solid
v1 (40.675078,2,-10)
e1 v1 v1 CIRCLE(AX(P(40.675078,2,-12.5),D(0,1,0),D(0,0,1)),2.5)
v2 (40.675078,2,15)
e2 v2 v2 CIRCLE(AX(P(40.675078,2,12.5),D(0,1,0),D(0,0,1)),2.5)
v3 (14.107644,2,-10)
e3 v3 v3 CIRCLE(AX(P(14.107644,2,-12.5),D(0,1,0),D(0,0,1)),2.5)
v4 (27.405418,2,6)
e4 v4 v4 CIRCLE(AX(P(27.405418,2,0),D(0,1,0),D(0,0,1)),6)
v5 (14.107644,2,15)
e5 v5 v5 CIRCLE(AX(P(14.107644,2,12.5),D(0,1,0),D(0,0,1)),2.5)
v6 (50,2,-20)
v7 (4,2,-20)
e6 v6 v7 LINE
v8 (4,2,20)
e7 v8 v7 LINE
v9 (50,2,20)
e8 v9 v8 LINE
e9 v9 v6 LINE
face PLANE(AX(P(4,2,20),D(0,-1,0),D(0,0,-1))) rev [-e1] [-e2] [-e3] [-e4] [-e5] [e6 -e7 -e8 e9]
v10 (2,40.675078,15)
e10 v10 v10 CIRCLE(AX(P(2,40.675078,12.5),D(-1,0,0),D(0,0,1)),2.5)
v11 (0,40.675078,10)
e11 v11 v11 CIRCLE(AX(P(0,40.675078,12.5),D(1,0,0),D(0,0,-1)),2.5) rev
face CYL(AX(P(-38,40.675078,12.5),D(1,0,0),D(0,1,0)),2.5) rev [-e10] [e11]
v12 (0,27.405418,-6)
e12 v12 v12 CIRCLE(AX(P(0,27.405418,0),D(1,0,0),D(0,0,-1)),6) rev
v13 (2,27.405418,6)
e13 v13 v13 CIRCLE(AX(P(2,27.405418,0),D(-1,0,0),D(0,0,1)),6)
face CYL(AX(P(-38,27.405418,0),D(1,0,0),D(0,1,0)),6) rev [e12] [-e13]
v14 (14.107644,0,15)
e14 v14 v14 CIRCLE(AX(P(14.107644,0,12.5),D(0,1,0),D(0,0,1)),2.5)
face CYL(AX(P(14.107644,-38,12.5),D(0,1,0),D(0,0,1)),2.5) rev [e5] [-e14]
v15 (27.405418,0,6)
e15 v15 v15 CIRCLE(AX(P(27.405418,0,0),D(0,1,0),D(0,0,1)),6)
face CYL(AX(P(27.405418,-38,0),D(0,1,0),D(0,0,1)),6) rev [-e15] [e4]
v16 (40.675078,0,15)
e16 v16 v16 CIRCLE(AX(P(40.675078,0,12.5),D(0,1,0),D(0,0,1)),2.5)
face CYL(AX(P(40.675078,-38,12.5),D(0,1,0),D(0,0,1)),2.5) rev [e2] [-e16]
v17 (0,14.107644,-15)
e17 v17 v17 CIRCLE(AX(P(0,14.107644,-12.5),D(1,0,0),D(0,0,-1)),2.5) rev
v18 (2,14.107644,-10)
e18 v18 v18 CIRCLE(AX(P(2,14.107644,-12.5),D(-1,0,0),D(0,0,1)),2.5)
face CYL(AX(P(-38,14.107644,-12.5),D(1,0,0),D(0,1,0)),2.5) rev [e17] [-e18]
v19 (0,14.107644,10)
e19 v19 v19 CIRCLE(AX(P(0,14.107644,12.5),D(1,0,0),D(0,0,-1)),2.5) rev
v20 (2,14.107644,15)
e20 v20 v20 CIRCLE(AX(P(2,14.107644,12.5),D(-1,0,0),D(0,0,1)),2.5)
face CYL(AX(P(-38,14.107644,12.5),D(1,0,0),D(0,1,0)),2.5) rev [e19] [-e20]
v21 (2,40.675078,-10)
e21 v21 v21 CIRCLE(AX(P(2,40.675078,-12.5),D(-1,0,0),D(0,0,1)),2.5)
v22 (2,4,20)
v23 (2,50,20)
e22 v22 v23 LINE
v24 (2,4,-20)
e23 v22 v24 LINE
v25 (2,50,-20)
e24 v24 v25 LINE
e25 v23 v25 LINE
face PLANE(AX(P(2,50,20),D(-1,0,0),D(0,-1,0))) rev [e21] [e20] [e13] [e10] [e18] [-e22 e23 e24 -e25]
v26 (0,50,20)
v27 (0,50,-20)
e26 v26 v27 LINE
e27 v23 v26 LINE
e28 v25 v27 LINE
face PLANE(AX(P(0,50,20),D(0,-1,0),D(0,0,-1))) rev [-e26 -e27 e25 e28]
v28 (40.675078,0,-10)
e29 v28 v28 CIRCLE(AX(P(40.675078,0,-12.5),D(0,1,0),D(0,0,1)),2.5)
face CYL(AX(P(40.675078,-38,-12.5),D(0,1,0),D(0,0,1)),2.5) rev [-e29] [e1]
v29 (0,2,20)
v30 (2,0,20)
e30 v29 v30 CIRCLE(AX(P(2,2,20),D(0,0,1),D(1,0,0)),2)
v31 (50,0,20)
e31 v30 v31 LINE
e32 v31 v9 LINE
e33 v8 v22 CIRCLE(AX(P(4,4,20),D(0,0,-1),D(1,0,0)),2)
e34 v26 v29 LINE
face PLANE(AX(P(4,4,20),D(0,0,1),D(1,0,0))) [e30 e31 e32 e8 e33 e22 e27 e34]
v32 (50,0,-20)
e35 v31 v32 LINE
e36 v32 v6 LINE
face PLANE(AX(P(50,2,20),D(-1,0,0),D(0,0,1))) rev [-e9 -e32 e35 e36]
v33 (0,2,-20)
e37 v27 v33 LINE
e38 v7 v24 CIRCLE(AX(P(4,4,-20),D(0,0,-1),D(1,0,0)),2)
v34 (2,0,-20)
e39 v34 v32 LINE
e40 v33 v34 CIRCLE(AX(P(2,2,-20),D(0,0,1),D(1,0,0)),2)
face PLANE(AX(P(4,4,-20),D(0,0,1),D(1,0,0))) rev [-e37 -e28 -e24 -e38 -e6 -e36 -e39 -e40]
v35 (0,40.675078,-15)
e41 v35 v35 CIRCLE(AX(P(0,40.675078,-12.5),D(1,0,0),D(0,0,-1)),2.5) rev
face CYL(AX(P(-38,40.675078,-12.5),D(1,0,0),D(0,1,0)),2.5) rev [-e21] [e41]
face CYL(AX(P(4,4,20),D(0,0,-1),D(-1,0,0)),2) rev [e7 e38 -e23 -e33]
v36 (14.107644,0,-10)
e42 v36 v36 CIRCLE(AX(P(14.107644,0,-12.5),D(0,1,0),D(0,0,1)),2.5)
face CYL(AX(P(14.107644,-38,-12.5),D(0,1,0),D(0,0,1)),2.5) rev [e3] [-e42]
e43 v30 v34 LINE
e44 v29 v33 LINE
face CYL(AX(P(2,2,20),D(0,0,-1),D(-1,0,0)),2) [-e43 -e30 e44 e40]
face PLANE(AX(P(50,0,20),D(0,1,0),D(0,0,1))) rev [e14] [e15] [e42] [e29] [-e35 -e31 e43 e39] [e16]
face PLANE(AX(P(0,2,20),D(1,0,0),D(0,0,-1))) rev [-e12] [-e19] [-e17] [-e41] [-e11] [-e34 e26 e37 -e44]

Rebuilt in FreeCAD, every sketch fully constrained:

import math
import FreeCAD as App
import Part
import Sketcher

V = App.Vector
Q = App.Units.Quantity

doc = App.newDocument("Part")
body = doc.addObject("PartDesign::Body", "Body")

sketch1 = body.newObject("Sketcher::SketchObject", "Sketch")
sketch1.AttachmentSupport = (doc.getObject("XY_Plane"), [""])
sketch1.MapMode = "FlatFace"
sketch1.addGeometry([
    Part.LineSegment(V(0, 50, 0), V(0, 2, 0)),
    Part.ArcOfCircle(Part.Circle(V(2, 2, 0), V(0, 0, 1), 2), math.radians(-180), math.radians(-90)),
    Part.LineSegment(V(2, 0, 0), V(50, 0, 0)),
    Part.LineSegment(V(50, 0, 0), V(50, 2, 0)),
    Part.LineSegment(V(50, 2, 0), V(4, 2, 0)),
    Part.ArcOfCircle(Part.Circle(V(4, 4, 0), V(0, 0, 1), 2), math.radians(-180), math.radians(-90)),
    Part.LineSegment(V(2, 4, 0), V(2, 50, 0)),
    Part.LineSegment(V(2, 50, 0), V(0, 50, 0)),
], False)
sketch1.addConstraint([
    Sketcher.Constraint("Tangent", 0, 2, 1, 1),
    Sketcher.Constraint("Tangent", 1, 2, 2, 1),
    Sketcher.Constraint("Coincident", 2, 2, 3, 1),
    Sketcher.Constraint("Coincident", 3, 2, 4, 1),
    Sketcher.Constraint("Tangent", 4, 2, 5, 2),
    Sketcher.Constraint("Tangent", 5, 1, 6, 1),
    Sketcher.Constraint("Coincident", 6, 2, 7, 1),
    Sketcher.Constraint("Coincident", 7, 2, 0, 1),
    Sketcher.Constraint("Vertical", 0),
    Sketcher.Constraint("Horizontal", 2),
    Sketcher.Constraint("Vertical", 3),
    Sketcher.Constraint("Horizontal", 4),
    Sketcher.Constraint("Vertical", 6),
    Sketcher.Constraint("Horizontal", 7),
    Sketcher.Constraint("Equal", 1, 5),
    Sketcher.Constraint("PointOnObject", 0, 2, -2),
    Sketcher.Constraint("PointOnObject", 1, 2, -1),
    Sketcher.Constraint("Horizontal", 0, 2, 3, 2),
    Sketcher.Constraint("Vertical", 1, 2, 5, 1),
    Sketcher.Constraint("Equal", 2, 0),
    Sketcher.Constraint("Radius", 1, Q("2 mm")),
    Sketcher.Constraint("DistanceX", 2, 1, 2, 2, Q("48 mm")),
])
pad1 = body.newObject("PartDesign::Pad", "Pad")
pad1.Profile = sketch1
pad1.Length = 40
pad1.Midplane = True

sketch2 = body.newObject("Sketcher::SketchObject", "Sketch001")
sketch2.AttachmentSupport = (doc.getObject("XZ_Plane"), [""])
sketch2.MapMode = "FlatFace"
sketch2.AttachmentOffset = App.Placement(V(0, 0, -2), App.Rotation())
sketch2.addGeometry([
    Part.Circle(V(27.405418, 0, 0), V(0, 0, 1), 6),
    Part.Circle(V(40.675078, -12.5, 0), V(0, 0, 1), 2.5),
    Part.Circle(V(40.675078, 12.5, 0), V(0, 0, 1), 2.5),
    Part.Circle(V(14.107644, 12.5, 0), V(0, 0, 1), 2.5),
    Part.Circle(V(14.107644, -12.5, 0), V(0, 0, 1), 2.5),
], False)
sketch2.addConstraint([
    Sketcher.Constraint("Equal", 1, 2),
    Sketcher.Constraint("Equal", 2, 3),
    Sketcher.Constraint("Equal", 3, 4),
    Sketcher.Constraint("Symmetric", 1, 3, 2, 3, -1),
    Sketcher.Constraint("Symmetric", 3, 3, 4, 3, -1),
    Sketcher.Constraint("PointOnObject", 0, 3, -1),
    Sketcher.Constraint("Horizontal", 2, 3, 3, 3),
    Sketcher.Constraint("Diameter", 0, Q("12 mm")),
    Sketcher.Constraint("Diameter", 1, Q("5 mm")),
    Sketcher.Constraint("DistanceY", 1, 3, 2, 3, Q("25 mm")),
    Sketcher.Constraint("DistanceX", -1, 1, 1, 3, Q("40.675078 mm")),
    Sketcher.Constraint("DistanceX", 0, 3, 1, 3, Q("13.26966 mm")),
    Sketcher.Constraint("DistanceX", -1, 1, 3, 3, Q("14.107644 mm")),
])
pocket1 = body.newObject("PartDesign::Pocket", "Pocket")
pocket1.Profile = sketch2
pocket1.Length = 40
pocket1.Reversed = True
doc.recompute()

datumplane = body.newObject("PartDesign::Plane", "DatumPlane")
datumplane.Placement = App.Placement(V(0, 0, 0), App.Rotation(V(0.707106781, 0.707106781, 0), V(0, 0, -1), V(-0.707106781, 0.707106781, 0), "ZXY"))
mirrored = body.newObject("PartDesign::Mirrored", "Mirrored")
mirrored.Originals = [pocket1]
mirrored.MirrorPlane = (datumplane, [""])
body.Tip = mirrored

doc.recompute()
